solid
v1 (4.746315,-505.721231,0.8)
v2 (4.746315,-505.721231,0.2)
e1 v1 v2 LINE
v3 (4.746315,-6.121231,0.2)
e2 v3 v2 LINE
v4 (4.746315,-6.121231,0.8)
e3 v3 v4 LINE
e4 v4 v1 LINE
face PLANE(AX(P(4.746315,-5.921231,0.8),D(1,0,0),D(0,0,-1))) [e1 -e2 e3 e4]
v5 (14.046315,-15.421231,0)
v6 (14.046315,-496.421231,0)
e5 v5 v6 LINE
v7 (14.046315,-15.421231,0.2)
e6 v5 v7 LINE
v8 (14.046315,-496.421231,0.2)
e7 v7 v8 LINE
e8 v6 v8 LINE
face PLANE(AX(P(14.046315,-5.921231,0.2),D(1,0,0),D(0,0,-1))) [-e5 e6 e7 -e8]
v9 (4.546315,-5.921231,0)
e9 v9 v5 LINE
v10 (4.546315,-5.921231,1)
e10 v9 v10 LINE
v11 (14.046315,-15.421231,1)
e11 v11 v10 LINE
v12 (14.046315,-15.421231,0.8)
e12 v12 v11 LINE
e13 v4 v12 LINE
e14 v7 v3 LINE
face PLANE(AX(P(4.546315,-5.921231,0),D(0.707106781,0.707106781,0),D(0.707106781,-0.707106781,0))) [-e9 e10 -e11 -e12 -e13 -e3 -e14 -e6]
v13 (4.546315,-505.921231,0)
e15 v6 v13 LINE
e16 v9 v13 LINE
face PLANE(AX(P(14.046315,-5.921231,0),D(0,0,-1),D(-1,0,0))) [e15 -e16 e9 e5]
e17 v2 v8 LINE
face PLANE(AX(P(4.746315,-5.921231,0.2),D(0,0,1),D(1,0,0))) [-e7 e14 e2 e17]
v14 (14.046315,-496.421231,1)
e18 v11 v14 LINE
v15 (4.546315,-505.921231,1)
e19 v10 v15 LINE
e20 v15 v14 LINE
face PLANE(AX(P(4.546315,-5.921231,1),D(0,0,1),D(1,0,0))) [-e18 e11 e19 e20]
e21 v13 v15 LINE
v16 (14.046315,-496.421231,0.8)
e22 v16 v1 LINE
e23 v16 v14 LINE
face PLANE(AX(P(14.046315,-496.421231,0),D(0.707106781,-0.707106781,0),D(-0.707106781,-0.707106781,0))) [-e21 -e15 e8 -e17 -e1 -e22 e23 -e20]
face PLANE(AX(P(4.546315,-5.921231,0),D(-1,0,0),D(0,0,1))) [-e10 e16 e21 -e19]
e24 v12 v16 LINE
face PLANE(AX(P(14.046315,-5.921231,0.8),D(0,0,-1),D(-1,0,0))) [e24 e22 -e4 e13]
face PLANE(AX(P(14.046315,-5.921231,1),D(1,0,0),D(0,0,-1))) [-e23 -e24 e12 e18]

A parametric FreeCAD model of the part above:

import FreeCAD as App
import Part
import Sketcher

V = App.Vector
Q = App.Units.Quantity


def add_polygon(sketch, points):
    """Adds a closed chain of lines whose ends are joined by coincident constraints."""
    first, n = sketch.GeometryCount, len(points)
    for a, b in zip(points, points[1:] + points[:1]):
        sketch.addGeometry(Part.LineSegment(App.Vector(*a, 0), App.Vector(*b, 0)), False)
    for i in range(n):
        sketch.addConstraint(Sketcher.Constraint("Coincident", first + i, 2, first + (i + 1) % n, 1))

doc = App.newDocument("Part")
params = doc.addObject("Spreadsheet::Sheet", "Params")
for row, (alias, value) in enumerate([
    ("sketch1_width", "1 mm"),
    ("sketch1_width2", "0.2 mm"),
    ("sketch1_height", "9.5 mm"),
    ("sketch1_height2", "9.3 mm"),
    ("pad1_length", "500 mm"),
    ("sketch2_width", "9.5 mm"),
    ("sketch3_width", "9.5 mm"),
], start=1):
    params.set(f"A{row}", alias)
    params.set(f"B{row}", "=" + value)
    params.setAlias(f"B{row}", alias)

body = doc.addObject("PartDesign::Body", "Body")

# Sketch on XZ plane
sketch1 = body.newObject("Sketcher::SketchObject", "Sketch")
sketch1.AttachmentSupport = (doc.getObject("XZ_Plane"), [""])
sketch1.MapMode = "FlatFace"
add_polygon(sketch1, [(0, 9.5), (0, 0), (0.2, 0), (0.2, 9.3), (0.8, 9.3), (0.8, 0), (1, 0), (1, 9.5)])  # lines 0-7
sketch1.addConstraint([
    Sketcher.Constraint("Vertical", 0),
    Sketcher.Constraint("Horizontal", 1),
    Sketcher.Constraint("Vertical", 2),
    Sketcher.Constraint("Horizontal", 3),
    Sketcher.Constraint("Vertical", 4),
    Sketcher.Constraint("Horizontal", 5),
    Sketcher.Constraint("Vertical", 6),
    Sketcher.Constraint("Horizontal", 7),
    Sketcher.Constraint("Coincident", 0, 2, -1, 1),
    Sketcher.Constraint("PointOnObject", 4, 2, -1),
    Sketcher.Constraint("Equal", 1, 5),
    Sketcher.Constraint("DistanceX", 7, 2, 7, 1, Q("1 mm")),
    Sketcher.Constraint("DistanceX", 1, 1, 1, 2, Q("0.2 mm")),
    Sketcher.Constraint("DistanceY", 0, 2, 0, 1, Q("9.5 mm")),
    Sketcher.Constraint("DistanceY", 2, 1, 2, 2, Q("9.3 mm")),
])
sketch1.setExpression("Constraints[19]", "Params.sketch1_width")
sketch1.setExpression("Constraints[20]", "Params.sketch1_width2")
sketch1.setExpression("Constraints[21]", "Params.sketch1_height")
sketch1.setExpression("Constraints[22]", "Params.sketch1_height2")
pad1 = body.newObject("PartDesign::Pad", "Pad")
pad1.Profile = sketch1
pad1.setExpression("Length", "Params.pad1_length")

# Sketch on YZ plane
sketch2 = body.newObject("Sketcher::SketchObject", "Sketch001")
sketch2.AttachmentSupport = (doc.getObject("YZ_Plane"), [""])
sketch2.MapMode = "FlatFace"
add_polygon(sketch2, [(0, 0), (0, 10), (-10, 0)])  # lines 0-2
sketch2.addConstraint([
    Sketcher.Constraint("Vertical", 0),
    Sketcher.Constraint("Horizontal", 2),
    Sketcher.Constraint("Coincident", 2, 2, -1, 1),
    Sketcher.Constraint("Equal", 2, 0),
    Sketcher.Constraint("DistanceX", 2, 1, 2, 2, Q("9.5 mm")),
])
sketch2.setExpression("Constraints[7]", "Params.sketch2_width")
pocket1 = body.newObject("PartDesign::Pocket", "Pocket")
pocket1.Profile = sketch2
pocket1.Type = "ThroughAll"
pocket1.Reversed = True

# Sketch on YZ plane
sketch3 = body.newObject("Sketcher::SketchObject", "Sketch002")
sketch3.AttachmentSupport = (doc.getObject("YZ_Plane"), [""])
sketch3.MapMode = "FlatFace"
add_polygon(sketch3, [(-500, 0), (-490, 0), (-500, 10)])  # lines 0-2
sketch3.addConstraint([
    Sketcher.Constraint("Horizontal", 0),
    Sketcher.Constraint("Vertical", 2),
    Sketcher.Constraint("PointOnObject", 0, 2, -1),
    Sketcher.Constraint("Equal", 0, 2),
    Sketcher.Constraint("DistanceX", 0, 1, 0, 2, Q("9.5 mm")),
    Sketcher.Constraint("DistanceX", 1, 2, -1, 1, Q("500 mm")),
])
sketch3.setExpression("Constraints[7]", "Params.sketch3_width")
pocket2 = body.newObject("PartDesign::Pocket", "Pocket001")
pocket2.Profile = sketch3
pocket2.Type = "ThroughAll"
pocket2.Reversed = True
body2 = doc.addObject("PartDesign::Body", "Body001")
doc.recompute()

body.Placement = App.Placement(V(14.046315, -5.921231, 0), App.Rotation(V(0, -1, 0), 90))
boolean = body2.newObject("PartDesign::Boolean", "Boolean")
boolean.Type = "Fuse"
boolean.addObjects([body])

doc.recompute()
